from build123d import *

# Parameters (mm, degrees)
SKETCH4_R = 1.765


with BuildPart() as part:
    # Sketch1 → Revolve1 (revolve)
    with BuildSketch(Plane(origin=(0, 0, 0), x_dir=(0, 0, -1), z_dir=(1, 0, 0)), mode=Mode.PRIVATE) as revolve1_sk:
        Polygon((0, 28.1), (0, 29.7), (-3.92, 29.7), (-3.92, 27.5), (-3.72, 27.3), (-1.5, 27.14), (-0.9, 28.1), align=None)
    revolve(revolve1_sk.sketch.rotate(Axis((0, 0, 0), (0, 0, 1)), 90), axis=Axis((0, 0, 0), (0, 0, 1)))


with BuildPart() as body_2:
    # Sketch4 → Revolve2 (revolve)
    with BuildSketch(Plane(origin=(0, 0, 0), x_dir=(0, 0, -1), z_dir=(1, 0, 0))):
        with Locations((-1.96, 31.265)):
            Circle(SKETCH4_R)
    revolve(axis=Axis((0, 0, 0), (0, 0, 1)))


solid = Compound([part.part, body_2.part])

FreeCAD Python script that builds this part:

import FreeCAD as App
import Part
import Sketcher
from FreeCAD import Vector
Q = App.Units.Quantity


def add_polygon(sketch, points):
    """Adds a closed chain of lines whose ends are joined by coincident constraints."""
    first, n = sketch.GeometryCount, len(points)
    for a, b in zip(points, points[1:] + points[:1]):
        sketch.addGeometry(Part.LineSegment(App.Vector(*a, 0), App.Vector(*b, 0)), False)
    for i in range(n):
        sketch.addConstraint(Sketcher.Constraint("Coincident", first + i, 2, first + (i + 1) % n, 1))

doc = App.newDocument("Part")
params = doc.addObject("Spreadsheet::Sheet", "Params")
for row, (alias, value) in enumerate([
    ("sketch1_width", "1.6 mm"),
    ("sketch1_width2", "2.2 mm"),
    ("sketch1_height", "0.9 mm"),
    ("sketch1_height2", "3.92 mm"),
    ("revolution_angle", "360 deg"),
    ("sketch2_diameter", "3.53 mm"),
    ("revolution2_angle", "360 deg"),
], start=1):
    params.set(f"A{row}", alias)
    params.set(f"B{row}", "=" + value)
    params.setAlias(f"B{row}", alias)

body = doc.addObject("PartDesign::Body", "Body")

# Sketch on YZ plane
sketch1 = doc.addObject("Sketcher::SketchObject", "Sketch")
body.addObject(sketch1)
sketch1.AttachmentSupport = (doc.YZ_Plane, [""])
sketch1.MapMode = "FlatFace"
add_polygon(sketch1, [(28.1, 0), (29.7, 0), (29.7, 3.92), (27.5, 3.92), (27.3, 3.72), (27.14, 1.5), (28.1, 0.9)])  # lines 0-6
sketch1.addConstraint(Sketcher.Constraint("Horizontal", 0))
sketch1.addConstraint(Sketcher.Constraint("Vertical", 1))
sketch1.addConstraint(Sketcher.Constraint("Horizontal", 2))
sketch1.addConstraint(Sketcher.Constraint("Vertical", 6))
sketch1.addConstraint(Sketcher.Constraint("PointOnObject", 0, 2, -1))
sketch1.addConstraint(Sketcher.Constraint("Angle", 3, Q("-135 deg")))
sketch1.addConstraint(Sketcher.Constraint("DistanceX", 0, 1, 0, 2, 1.6))
sketch1.addConstraint(Sketcher.Constraint("DistanceX", 2, 2, 2, 1, 2.2))
sketch1.addConstraint(Sketcher.Constraint("DistanceY", 6, 2, 6, 1, 0.9))
sketch1.addConstraint(Sketcher.Constraint("DistanceY", 1, 1, 1, 2, 3.92))
sketch1.addConstraint(Sketcher.Constraint("DistanceX", -1, 1, 0, 2, 29.7))
sketch1.addConstraint(Sketcher.Constraint("DistanceX", -1, 1, 3, 2, 27.3))
sketch1.addConstraint(Sketcher.Constraint("DistanceY", -1, 1, 4, 2, 1.5))
sketch1.addConstraint(Sketcher.Constraint("DistanceX", -1, 1, 4, 2, 27.14))
sketch1.setExpression("Constraints[13]", "Params.sketch1_width")
sketch1.setExpression("Constraints[14]", "Params.sketch1_width2")
sketch1.setExpression("Constraints[15]", "Params.sketch1_height")
sketch1.setExpression("Constraints[16]", "Params.sketch1_height2")
revolution = doc.addObject("PartDesign::Revolution", "Revolution")
body.addObject(revolution)
revolution.Profile = sketch1
revolution.ReferenceAxis = (sketch1, ["V_Axis"])
revolution.setExpression("Angle", "Params.revolution_angle")
body2 = doc.addObject("PartDesign::Body", "Body001")

# Sketch on YZ plane
sketch2 = doc.addObject("Sketcher::SketchObject", "Sketch001")
body2.addObject(sketch2)
sketch2.AttachmentSupport = (doc.getObject("YZ_Plane001"), [""])
sketch2.MapMode = "FlatFace"
sketch2.addGeometry(Part.Circle(Vector(31.265, 1.96, 0), Vector(0, 0, 1), 1.765), False)
sketch2.addConstraint(Sketcher.Constraint("Diameter", 0, 3.53))
sketch2.addConstraint(Sketcher.Constraint("DistanceY", -1, 1, 0, 3, 1.96))
sketch2.addConstraint(Sketcher.Constraint("DistanceX", -1, 1, 0, 3, 31.265))
sketch2.setExpression("Constraints[0]", "Params.sketch2_diameter")
revolution2 = doc.addObject("PartDesign::Revolution", "Revolution001")
body2.addObject(revolution2)
revolution2.Profile = sketch2
revolution2.ReferenceAxis = (sketch2, ["V_Axis"])
revolution2.setExpression("Angle", "Params.revolution2_angle")

doc.recompute()
